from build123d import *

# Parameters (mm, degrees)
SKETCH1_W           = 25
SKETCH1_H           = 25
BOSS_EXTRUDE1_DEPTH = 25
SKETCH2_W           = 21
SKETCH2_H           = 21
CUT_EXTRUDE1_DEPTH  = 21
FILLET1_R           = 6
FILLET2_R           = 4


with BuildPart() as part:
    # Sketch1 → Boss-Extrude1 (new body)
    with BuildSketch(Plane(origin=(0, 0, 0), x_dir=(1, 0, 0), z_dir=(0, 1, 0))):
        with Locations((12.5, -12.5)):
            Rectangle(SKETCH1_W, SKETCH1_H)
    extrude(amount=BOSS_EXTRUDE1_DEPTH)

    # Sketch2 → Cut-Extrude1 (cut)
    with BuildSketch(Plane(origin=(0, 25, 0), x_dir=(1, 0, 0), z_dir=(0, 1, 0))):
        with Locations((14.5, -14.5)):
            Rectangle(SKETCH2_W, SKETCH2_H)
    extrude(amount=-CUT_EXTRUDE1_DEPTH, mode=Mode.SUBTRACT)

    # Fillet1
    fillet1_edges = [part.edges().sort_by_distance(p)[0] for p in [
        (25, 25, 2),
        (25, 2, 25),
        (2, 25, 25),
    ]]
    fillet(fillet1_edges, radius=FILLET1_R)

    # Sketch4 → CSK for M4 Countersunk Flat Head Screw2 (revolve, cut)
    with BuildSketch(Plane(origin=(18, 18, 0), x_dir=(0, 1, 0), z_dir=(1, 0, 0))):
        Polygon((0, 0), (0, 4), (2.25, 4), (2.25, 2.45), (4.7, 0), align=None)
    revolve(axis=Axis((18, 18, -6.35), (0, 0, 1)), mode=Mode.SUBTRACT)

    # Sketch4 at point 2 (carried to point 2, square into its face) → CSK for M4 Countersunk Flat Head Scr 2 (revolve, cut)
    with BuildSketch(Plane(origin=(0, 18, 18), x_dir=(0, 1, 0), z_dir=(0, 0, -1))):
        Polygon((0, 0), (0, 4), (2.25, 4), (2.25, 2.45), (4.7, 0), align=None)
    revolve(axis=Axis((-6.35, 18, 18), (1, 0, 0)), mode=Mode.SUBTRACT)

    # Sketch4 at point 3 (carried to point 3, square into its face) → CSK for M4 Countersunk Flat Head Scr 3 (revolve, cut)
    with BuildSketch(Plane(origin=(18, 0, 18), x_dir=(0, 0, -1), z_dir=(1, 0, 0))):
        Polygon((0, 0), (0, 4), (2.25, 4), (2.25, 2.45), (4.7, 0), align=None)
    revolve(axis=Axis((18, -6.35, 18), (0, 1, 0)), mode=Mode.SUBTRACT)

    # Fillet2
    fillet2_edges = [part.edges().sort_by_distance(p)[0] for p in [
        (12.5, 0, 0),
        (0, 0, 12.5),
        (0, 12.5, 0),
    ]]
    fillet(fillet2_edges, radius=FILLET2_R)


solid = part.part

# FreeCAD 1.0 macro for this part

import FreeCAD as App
import Part
import Sketcher
from FreeCAD import Vector
Q = App.Units.Quantity


def edges_at(feature, points):
    """Names of the edges that pass closest to the given points."""
    edges = feature.Shape.Edges
    near = lambda p: min(range(len(edges)), key=lambda i: edges[i].distToShape(Part.Vertex(*p))[0])
    return sorted({f"Edge{near(p) + 1}" for p in points})


def add_polygon(sketch, points):
    """Adds a closed chain of lines whose ends are joined by coincident constraints."""
    first, n = sketch.GeometryCount, len(points)
    for a, b in zip(points, points[1:] + points[:1]):
        sketch.addGeometry(Part.LineSegment(App.Vector(*a, 0), App.Vector(*b, 0)), False)
    for i in range(n):
        sketch.addConstraint(Sketcher.Constraint("Coincident", first + i, 2, first + (i + 1) % n, 1))

doc = App.newDocument("Part")
body = doc.addObject("PartDesign::Body", "Body")

sketch1 = doc.addObject("Sketcher::SketchObject", "Sketch")
body.addObject(sketch1)
sketch1.AttachmentSupport = (doc.XZ_Plane, [""])
sketch1.MapMode = "FlatFace"
add_polygon(sketch1, [(0, 0), (0, 25), (25, 25), (25, 0)])
sketch1.addConstraint(Sketcher.Constraint("Vertical", 0))
sketch1.addConstraint(Sketcher.Constraint("Horizontal", 1))
sketch1.addConstraint(Sketcher.Constraint("Vertical", 2))
sketch1.addConstraint(Sketcher.Constraint("Horizontal", 3))
sketch1.addConstraint(Sketcher.Constraint("Coincident", 3, 2, -1, 1))
sketch1.addConstraint(Sketcher.Constraint("Equal", 3, 0))
sketch1.addConstraint(Sketcher.Constraint("DistanceX", 1, 1, 1, 2, Q("25 mm")))
pad1 = doc.addObject("PartDesign::Pad", "Pad")
body.addObject(pad1)
pad1.Profile = sketch1
pad1.Length = 25
pad1.Reversed = True

sketch2 = doc.addObject("Sketcher::SketchObject", "Sketch001")
body.addObject(sketch2)
sketch2.AttachmentSupport = (doc.XZ_Plane, [""])
sketch2.MapMode = "FlatFace"
sketch2.AttachmentOffset = App.Placement(Vector(0, 0, -25), App.Rotation())
add_polygon(sketch2, [(4, 4), (4, 25), (25, 25), (25, 4)])
sketch2.addConstraint(Sketcher.Constraint("Vertical", 0))
sketch2.addConstraint(Sketcher.Constraint("Horizontal", 1))
sketch2.addConstraint(Sketcher.Constraint("Vertical", 2))
sketch2.addConstraint(Sketcher.Constraint("Horizontal", 3))
sketch2.addConstraint(Sketcher.Constraint("Equal", 3, 0))
sketch2.addConstraint(Sketcher.Constraint("DistanceX", 1, 1, 1, 2, Q("21 mm")))
sketch2.addConstraint(Sketcher.Constraint("DistanceX", -1, 1, 0, 2, Q("4 mm")))
sketch2.addConstraint(Sketcher.Constraint("DistanceY", -1, 1, 0, 2, Q("25 mm")))
pocket1 = doc.addObject("PartDesign::Pocket", "Pocket")
body.addObject(pocket1)
pocket1.Profile = sketch2
pocket1.Length = 21
pocket1.Reversed = True
doc.recompute()

fillet = doc.addObject("PartDesign::Fillet", "Fillet")
body.addObject(fillet)
fillet.Base = (pocket1, edges_at(pocket1, [(25, 25, 2), (25, 2, 25), (2, 25, 25)]))
fillet.Radius = 6

sketch3 = doc.addObject("Sketcher::SketchObject", "Sketch002")
body.addObject(sketch3)
sketch3.AttachmentSupport = (doc.YZ_Plane, [""])
sketch3.MapMode = "FlatFace"
sketch3.AttachmentOffset = App.Placement(Vector(0, 0, 18), App.Rotation())
add_polygon(sketch3, [(18, 4), (18, 0), (22.7, 0), (20.2, 2.5), (20.2, 4)])
sketch3.addGeometry(Part.LineSegment(Vector(18, 0, 0), Vector(18, 4, 0)), True)
sketch3.addConstraint(Sketcher.Constraint("Vertical", 0))
sketch3.addConstraint(Sketcher.Constraint("Horizontal", 1))
sketch3.addConstraint(Sketcher.Constraint("Vertical", 3))
sketch3.addConstraint(Sketcher.Constraint("Horizontal", 4))
sketch3.addConstraint(Sketcher.Constraint("Vertical", 5))
sketch3.addConstraint(Sketcher.Constraint("Coincident", 5, 1, 0, 2))
sketch3.addConstraint(Sketcher.Constraint("PointOnObject", 0, 2, -1))
sketch3.addConstraint(Sketcher.Constraint("Horizontal", 3, 2, 5, 2))
sketch3.addConstraint(Sketcher.Constraint("DistanceY", 0, 2, 0, 1, Q("4 mm")))
sketch3.addConstraint(Sketcher.Constraint("Angle", 2, Q("135 deg")))
sketch3.addConstraint(Sketcher.Constraint("DistanceX", 1, 1, 1, 2, Q("4.7 mm")))
sketch3.addConstraint(Sketcher.Constraint("DistanceX", -1, 1, 0, 2, Q("18 mm")))
sketch3.addConstraint(Sketcher.Constraint("DistanceX", 4, 2, 4, 1, Q("2.25 mm")))
groove = doc.addObject("PartDesign::Groove", "Groove")
body.addObject(groove)
groove.Profile = sketch3
groove.ReferenceAxis = (sketch3, ["Axis0"])
groove.Angle = 360

sketch4 = doc.addObject("Sketcher::SketchObject", "Sketch003")
body.addObject(sketch4)
sketch4.AttachmentSupport = (doc.XY_Plane, [""])
sketch4.MapMode = "FlatFace"
sketch4.AttachmentOffset = App.Placement(Vector(0, 0, 18), App.Rotation())
add_polygon(sketch4, [(4, 18), (0, 18), (0, 22.7), (2.5, 20.2), (4, 20.2)])
sketch4.addGeometry(Part.LineSegment(Vector(0, 18, 0), Vector(4, 18, 0)), True)
sketch4.addConstraint(Sketcher.Constraint("Horizontal", 0))
sketch4.addConstraint(Sketcher.Constraint("Vertical", 1))
sketch4.addConstraint(Sketcher.Constraint("Horizontal", 3))
sketch4.addConstraint(Sketcher.Constraint("Vertical", 4))
sketch4.addConstraint(Sketcher.Constraint("Horizontal", 5))
sketch4.addConstraint(Sketcher.Constraint("Coincident", 5, 1, 0, 2))
sketch4.addConstraint(Sketcher.Constraint("PointOnObject", 0, 2, -2))
sketch4.addConstraint(Sketcher.Constraint("Vertical", 3, 2, 5, 2))
sketch4.addConstraint(Sketcher.Constraint("DistanceX", 0, 2, 0, 1, Q("4 mm")))
sketch4.addConstraint(Sketcher.Constraint("Angle", 2, Q("-45 deg")))
sketch4.addConstraint(Sketcher.Constraint("DistanceY", 1, 1, 1, 2, Q("4.7 mm")))
sketch4.addConstraint(Sketcher.Constraint("DistanceY", -1, 1, 0, 2, Q("18 mm")))
sketch4.addConstraint(Sketcher.Constraint("DistanceX", 3, 1, 3, 2, Q("1.55 mm")))
groove2 = doc.addObject("PartDesign::Groove", "Groove001")
body.addObject(groove2)
groove2.Profile = sketch4
groove2.ReferenceAxis = (sketch4, ["Axis0"])
groove2.Angle = 360

sketch5 = doc.addObject("Sketcher::SketchObject", "Sketch004")
body.addObject(sketch5)
sketch5.AttachmentSupport = (doc.YZ_Plane, [""])
sketch5.MapMode = "FlatFace"
sketch5.AttachmentOffset = App.Placement(Vector(0, 0, 18), App.Rotation())
add_polygon(sketch5, [(4, 18), (0, 18), (0, 13.3), (2.5, 15.8), (4, 15.8)])
sketch5.addGeometry(Part.LineSegment(Vector(0, 18, 0), Vector(4, 18, 0)), True)
sketch5.addConstraint(Sketcher.Constraint("Horizontal", 0))
sketch5.addConstraint(Sketcher.Constraint("Vertical", 1))
sketch5.addConstraint(Sketcher.Constraint("Horizontal", 3))
sketch5.addConstraint(Sketcher.Constraint("Vertical", 4))
sketch5.addConstraint(Sketcher.Constraint("Horizontal", 5))
sketch5.addConstraint(Sketcher.Constraint("Coincident", 5, 1, 0, 2))
sketch5.addConstraint(Sketcher.Constraint("PointOnObject", 0, 2, -2))
sketch5.addConstraint(Sketcher.Constraint("Vertical", 3, 2, 5, 2))
sketch5.addConstraint(Sketcher.Constraint("DistanceX", 0, 2, 0, 1, Q("4 mm")))
sketch5.addConstraint(Sketcher.Constraint("Angle", 2, Q("45 deg")))
sketch5.addConstraint(Sketcher.Constraint("DistanceY", 1, 2, 1, 1, Q("4.7 mm")))
sketch5.addConstraint(Sketcher.Constraint("DistanceY", -1, 1, 0, 2, Q("18 mm")))
sketch5.addConstraint(Sketcher.Constraint("DistanceX", 3, 1, 3, 2, Q("1.55 mm")))
groove3 = doc.addObject("PartDesign::Groove", "Groove002")
body.addObject(groove3)
groove3.Profile = sketch5
groove3.ReferenceAxis = (sketch5, ["Axis0"])
groove3.Angle = 360
doc.recompute()

fillet2 = doc.addObject("PartDesign::Fillet", "Fillet001")
body.addObject(fillet2)
fillet2.Base = (groove3, edges_at(groove3, [(12.5, 0, 0), (0, 0, 12.5), (0, 12.5, 0)]))
fillet2.Radius = 4

doc.recompute()
